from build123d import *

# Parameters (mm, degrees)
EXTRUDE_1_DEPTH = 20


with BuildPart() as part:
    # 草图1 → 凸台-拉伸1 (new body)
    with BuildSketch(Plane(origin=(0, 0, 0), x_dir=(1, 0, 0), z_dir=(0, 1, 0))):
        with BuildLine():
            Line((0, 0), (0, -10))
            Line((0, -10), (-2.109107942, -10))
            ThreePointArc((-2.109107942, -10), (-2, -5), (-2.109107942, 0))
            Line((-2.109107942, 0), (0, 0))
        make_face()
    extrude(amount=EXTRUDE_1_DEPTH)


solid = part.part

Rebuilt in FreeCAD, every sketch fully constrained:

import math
import FreeCAD as App
import Part
import Sketcher

doc = App.newDocument("Part")
params = doc.addObject("Spreadsheet::Sheet", "Params")
for row, (alias, value) in enumerate([
    ("sketch1_height", "10 mm"),
    ("sketch1_radius", "114.62 mm"),
    ("pad1_length", "20 mm"),
], start=1):
    params.set(f"A{row}", alias)
    params.set(f"B{row}", "=" + value)
    params.setAlias(f"B{row}", alias)

body = doc.addObject("PartDesign::Body", "Body")

# Sketch on XZ plane
sketch1 = doc.addObject("Sketcher::SketchObject", "Sketch")
body.addObject(sketch1)
sketch1.AttachmentSupport = (doc.XZ_Plane, [""])
sketch1.MapMode = "FlatFace"
sketch1.addGeometry([
    Part.LineSegment(App.Vector(0, 10, 0), App.Vector(0, 0, 0)),
    Part.LineSegment(App.Vector(0, 0, 0), App.Vector(-2.1, 0, 0)),
    Part.ArcOfCircle(Part.Circle(App.Vector(-116.6, 5, 0), App.Vector(0, 0, 1), 114.6), math.radians(-2.5), math.radians(2.5)),
    Part.LineSegment(App.Vector(-2.1, 10, 0), App.Vector(0, 10, 0)),
], False)
sketch1.addConstraint([
    Sketcher.Constraint("Coincident", 0, 2, 1, 1),
    Sketcher.Constraint("Coincident", 1, 2, 2, 1),
    Sketcher.Constraint("Coincident", 2, 2, 3, 1),
    Sketcher.Constraint("Coincident", 3, 2, 0, 1),
    Sketcher.Constraint("Vertical", 0),
    Sketcher.Constraint("Horizontal", 1),
    Sketcher.Constraint("Horizontal", 3),
    Sketcher.Constraint("Coincident", 0, 2, -1, 1),
    Sketcher.Constraint("Vertical", 1, 2, 2, 2),
    Sketcher.Constraint("DistanceY", 0, 2, 0, 1, 10.0),
    Sketcher.Constraint("Radius", 2, 114.62),
    Sketcher.Constraint("DistanceX", 2, 3, -1, 1, 116.62),
])
sketch1.setExpression("Constraints[9]", "Params.sketch1_height")
sketch1.setExpression("Constraints[10]", "Params.sketch1_radius")
pad1 = doc.addObject("PartDesign::Pad", "Pad")
body.addObject(pad1)
pad1.Profile = sketch1
pad1.setExpression("Length", "Params.pad1_length")
pad1.Reversed = True

doc.recompute()
